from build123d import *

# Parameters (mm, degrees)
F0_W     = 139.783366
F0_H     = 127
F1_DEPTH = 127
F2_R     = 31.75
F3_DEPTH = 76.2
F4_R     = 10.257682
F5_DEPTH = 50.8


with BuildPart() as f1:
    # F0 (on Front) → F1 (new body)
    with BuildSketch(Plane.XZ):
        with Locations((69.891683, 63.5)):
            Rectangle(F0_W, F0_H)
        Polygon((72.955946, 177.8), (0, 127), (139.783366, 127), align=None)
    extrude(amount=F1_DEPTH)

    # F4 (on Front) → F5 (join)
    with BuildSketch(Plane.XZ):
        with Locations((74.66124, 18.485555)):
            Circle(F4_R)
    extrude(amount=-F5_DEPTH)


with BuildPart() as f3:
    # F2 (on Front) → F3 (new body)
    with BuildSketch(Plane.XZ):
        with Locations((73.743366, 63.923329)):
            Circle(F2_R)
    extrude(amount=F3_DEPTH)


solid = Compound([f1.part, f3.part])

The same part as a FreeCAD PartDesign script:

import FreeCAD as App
import Part
import Sketcher
Q = App.Units.Quantity

doc = App.newDocument("Part")
body = doc.addObject("PartDesign::Body", "Body")

# Sketch on XZ plane
sketch1 = body.newObject("Sketcher::SketchObject", "Sketch")
sketch1.AttachmentSupport = (doc.getObject("XZ_Plane"), [""])
sketch1.MapMode = "FlatFace"
sketch1.addGeometry(Part.LineSegment(App.Vector(0, 127, 0), App.Vector(0, 0, 0)), False)
sketch1.addGeometry(Part.LineSegment(App.Vector(0, 0, 0), App.Vector(139.783366, 0, 0)), False)
sketch1.addGeometry(Part.LineSegment(App.Vector(139.783366, 0, 0), App.Vector(139.783366, 127, 0)), False)
sketch1.addGeometry(Part.LineSegment(App.Vector(139.783366, 127, 0), App.Vector(72.955946, 177.8, 0)), False)
sketch1.addGeometry(Part.LineSegment(App.Vector(72.955946, 177.8, 0), App.Vector(0, 127, 0)), False)
sketch1.addConstraint(Sketcher.Constraint("Coincident", 0, 2, 1, 1))
sketch1.addConstraint(Sketcher.Constraint("Coincident", 1, 2, 2, 1))
sketch1.addConstraint(Sketcher.Constraint("Coincident", 2, 2, 3, 1))
sketch1.addConstraint(Sketcher.Constraint("Coincident", 3, 2, 4, 1))
sketch1.addConstraint(Sketcher.Constraint("Coincident", 4, 2, 0, 1))
sketch1.addConstraint(Sketcher.Constraint("Vertical", 0))
sketch1.addConstraint(Sketcher.Constraint("Horizontal", 1))
sketch1.addConstraint(Sketcher.Constraint("Vertical", 2))
sketch1.addConstraint(Sketcher.Constraint("Coincident", 0, 2, -1, 1))
sketch1.addConstraint(Sketcher.Constraint("Horizontal", 2, 2, 4, 2))
sketch1.addConstraint(Sketcher.Constraint("DistanceY", 0, 2, 0, 1, Q("5 in")))
sketch1.addConstraint(Sketcher.Constraint("DistanceY", -1, 1, 3, 2, Q("7 in")))
sketch1.addConstraint(Sketcher.Constraint("Distance", 4, Q("3.5 in")))
sketch1.addConstraint(Sketcher.Constraint("DistanceX", 1, 1, 1, 2, 139.783366))
pad1 = body.newObject("PartDesign::Pad", "Pad")
pad1.Profile = sketch1
pad1.Length = Q("5 in")

# Sketch on XZ plane
sketch2 = body.newObject("Sketcher::SketchObject", "Sketch001")
sketch2.AttachmentSupport = (doc.getObject("XZ_Plane"), [""])
sketch2.MapMode = "FlatFace"
sketch2.addGeometry(Part.Circle(App.Vector(74.66124, 18.485555, 0), App.Vector(0, 0, 1), 10.257682), False)
sketch2.addConstraint(Sketcher.Constraint("Diameter", 0, 20.515364))
sketch2.addConstraint(Sketcher.Constraint("DistanceX", -1, 1, 0, 3, 74.66124))
sketch2.addConstraint(Sketcher.Constraint("DistanceY", -1, 1, 0, 3, 18.485555))
pad2 = body.newObject("PartDesign::Pad", "Pad001")
pad2.Profile = sketch2
pad2.Length = Q("2 in")
pad2.Reversed = True
body2 = doc.addObject("PartDesign::Body", "Body001")

# Sketch on XZ plane
sketch3 = body2.newObject("Sketcher::SketchObject", "Sketch002")
sketch3.AttachmentSupport = (doc.getObject("XZ_Plane001"), [""])
sketch3.MapMode = "FlatFace"
sketch3.addGeometry(Part.Circle(App.Vector(73.743366, 63.923329, 0), App.Vector(0, 0, 1), 31.75), False)
sketch3.addConstraint(Sketcher.Constraint("Diameter", 0, Q("2.5 in")))
sketch3.addConstraint(Sketcher.Constraint("DistanceY", -1, 1, 0, 3, 63.923329))
sketch3.addConstraint(Sketcher.Constraint("DistanceX", -1, 1, 0, 3, 73.743366))
pad3 = body2.newObject("PartDesign::Pad", "Pad002")
pad3.Profile = sketch3
pad3.Length = Q("3 in")

doc.recompute()
